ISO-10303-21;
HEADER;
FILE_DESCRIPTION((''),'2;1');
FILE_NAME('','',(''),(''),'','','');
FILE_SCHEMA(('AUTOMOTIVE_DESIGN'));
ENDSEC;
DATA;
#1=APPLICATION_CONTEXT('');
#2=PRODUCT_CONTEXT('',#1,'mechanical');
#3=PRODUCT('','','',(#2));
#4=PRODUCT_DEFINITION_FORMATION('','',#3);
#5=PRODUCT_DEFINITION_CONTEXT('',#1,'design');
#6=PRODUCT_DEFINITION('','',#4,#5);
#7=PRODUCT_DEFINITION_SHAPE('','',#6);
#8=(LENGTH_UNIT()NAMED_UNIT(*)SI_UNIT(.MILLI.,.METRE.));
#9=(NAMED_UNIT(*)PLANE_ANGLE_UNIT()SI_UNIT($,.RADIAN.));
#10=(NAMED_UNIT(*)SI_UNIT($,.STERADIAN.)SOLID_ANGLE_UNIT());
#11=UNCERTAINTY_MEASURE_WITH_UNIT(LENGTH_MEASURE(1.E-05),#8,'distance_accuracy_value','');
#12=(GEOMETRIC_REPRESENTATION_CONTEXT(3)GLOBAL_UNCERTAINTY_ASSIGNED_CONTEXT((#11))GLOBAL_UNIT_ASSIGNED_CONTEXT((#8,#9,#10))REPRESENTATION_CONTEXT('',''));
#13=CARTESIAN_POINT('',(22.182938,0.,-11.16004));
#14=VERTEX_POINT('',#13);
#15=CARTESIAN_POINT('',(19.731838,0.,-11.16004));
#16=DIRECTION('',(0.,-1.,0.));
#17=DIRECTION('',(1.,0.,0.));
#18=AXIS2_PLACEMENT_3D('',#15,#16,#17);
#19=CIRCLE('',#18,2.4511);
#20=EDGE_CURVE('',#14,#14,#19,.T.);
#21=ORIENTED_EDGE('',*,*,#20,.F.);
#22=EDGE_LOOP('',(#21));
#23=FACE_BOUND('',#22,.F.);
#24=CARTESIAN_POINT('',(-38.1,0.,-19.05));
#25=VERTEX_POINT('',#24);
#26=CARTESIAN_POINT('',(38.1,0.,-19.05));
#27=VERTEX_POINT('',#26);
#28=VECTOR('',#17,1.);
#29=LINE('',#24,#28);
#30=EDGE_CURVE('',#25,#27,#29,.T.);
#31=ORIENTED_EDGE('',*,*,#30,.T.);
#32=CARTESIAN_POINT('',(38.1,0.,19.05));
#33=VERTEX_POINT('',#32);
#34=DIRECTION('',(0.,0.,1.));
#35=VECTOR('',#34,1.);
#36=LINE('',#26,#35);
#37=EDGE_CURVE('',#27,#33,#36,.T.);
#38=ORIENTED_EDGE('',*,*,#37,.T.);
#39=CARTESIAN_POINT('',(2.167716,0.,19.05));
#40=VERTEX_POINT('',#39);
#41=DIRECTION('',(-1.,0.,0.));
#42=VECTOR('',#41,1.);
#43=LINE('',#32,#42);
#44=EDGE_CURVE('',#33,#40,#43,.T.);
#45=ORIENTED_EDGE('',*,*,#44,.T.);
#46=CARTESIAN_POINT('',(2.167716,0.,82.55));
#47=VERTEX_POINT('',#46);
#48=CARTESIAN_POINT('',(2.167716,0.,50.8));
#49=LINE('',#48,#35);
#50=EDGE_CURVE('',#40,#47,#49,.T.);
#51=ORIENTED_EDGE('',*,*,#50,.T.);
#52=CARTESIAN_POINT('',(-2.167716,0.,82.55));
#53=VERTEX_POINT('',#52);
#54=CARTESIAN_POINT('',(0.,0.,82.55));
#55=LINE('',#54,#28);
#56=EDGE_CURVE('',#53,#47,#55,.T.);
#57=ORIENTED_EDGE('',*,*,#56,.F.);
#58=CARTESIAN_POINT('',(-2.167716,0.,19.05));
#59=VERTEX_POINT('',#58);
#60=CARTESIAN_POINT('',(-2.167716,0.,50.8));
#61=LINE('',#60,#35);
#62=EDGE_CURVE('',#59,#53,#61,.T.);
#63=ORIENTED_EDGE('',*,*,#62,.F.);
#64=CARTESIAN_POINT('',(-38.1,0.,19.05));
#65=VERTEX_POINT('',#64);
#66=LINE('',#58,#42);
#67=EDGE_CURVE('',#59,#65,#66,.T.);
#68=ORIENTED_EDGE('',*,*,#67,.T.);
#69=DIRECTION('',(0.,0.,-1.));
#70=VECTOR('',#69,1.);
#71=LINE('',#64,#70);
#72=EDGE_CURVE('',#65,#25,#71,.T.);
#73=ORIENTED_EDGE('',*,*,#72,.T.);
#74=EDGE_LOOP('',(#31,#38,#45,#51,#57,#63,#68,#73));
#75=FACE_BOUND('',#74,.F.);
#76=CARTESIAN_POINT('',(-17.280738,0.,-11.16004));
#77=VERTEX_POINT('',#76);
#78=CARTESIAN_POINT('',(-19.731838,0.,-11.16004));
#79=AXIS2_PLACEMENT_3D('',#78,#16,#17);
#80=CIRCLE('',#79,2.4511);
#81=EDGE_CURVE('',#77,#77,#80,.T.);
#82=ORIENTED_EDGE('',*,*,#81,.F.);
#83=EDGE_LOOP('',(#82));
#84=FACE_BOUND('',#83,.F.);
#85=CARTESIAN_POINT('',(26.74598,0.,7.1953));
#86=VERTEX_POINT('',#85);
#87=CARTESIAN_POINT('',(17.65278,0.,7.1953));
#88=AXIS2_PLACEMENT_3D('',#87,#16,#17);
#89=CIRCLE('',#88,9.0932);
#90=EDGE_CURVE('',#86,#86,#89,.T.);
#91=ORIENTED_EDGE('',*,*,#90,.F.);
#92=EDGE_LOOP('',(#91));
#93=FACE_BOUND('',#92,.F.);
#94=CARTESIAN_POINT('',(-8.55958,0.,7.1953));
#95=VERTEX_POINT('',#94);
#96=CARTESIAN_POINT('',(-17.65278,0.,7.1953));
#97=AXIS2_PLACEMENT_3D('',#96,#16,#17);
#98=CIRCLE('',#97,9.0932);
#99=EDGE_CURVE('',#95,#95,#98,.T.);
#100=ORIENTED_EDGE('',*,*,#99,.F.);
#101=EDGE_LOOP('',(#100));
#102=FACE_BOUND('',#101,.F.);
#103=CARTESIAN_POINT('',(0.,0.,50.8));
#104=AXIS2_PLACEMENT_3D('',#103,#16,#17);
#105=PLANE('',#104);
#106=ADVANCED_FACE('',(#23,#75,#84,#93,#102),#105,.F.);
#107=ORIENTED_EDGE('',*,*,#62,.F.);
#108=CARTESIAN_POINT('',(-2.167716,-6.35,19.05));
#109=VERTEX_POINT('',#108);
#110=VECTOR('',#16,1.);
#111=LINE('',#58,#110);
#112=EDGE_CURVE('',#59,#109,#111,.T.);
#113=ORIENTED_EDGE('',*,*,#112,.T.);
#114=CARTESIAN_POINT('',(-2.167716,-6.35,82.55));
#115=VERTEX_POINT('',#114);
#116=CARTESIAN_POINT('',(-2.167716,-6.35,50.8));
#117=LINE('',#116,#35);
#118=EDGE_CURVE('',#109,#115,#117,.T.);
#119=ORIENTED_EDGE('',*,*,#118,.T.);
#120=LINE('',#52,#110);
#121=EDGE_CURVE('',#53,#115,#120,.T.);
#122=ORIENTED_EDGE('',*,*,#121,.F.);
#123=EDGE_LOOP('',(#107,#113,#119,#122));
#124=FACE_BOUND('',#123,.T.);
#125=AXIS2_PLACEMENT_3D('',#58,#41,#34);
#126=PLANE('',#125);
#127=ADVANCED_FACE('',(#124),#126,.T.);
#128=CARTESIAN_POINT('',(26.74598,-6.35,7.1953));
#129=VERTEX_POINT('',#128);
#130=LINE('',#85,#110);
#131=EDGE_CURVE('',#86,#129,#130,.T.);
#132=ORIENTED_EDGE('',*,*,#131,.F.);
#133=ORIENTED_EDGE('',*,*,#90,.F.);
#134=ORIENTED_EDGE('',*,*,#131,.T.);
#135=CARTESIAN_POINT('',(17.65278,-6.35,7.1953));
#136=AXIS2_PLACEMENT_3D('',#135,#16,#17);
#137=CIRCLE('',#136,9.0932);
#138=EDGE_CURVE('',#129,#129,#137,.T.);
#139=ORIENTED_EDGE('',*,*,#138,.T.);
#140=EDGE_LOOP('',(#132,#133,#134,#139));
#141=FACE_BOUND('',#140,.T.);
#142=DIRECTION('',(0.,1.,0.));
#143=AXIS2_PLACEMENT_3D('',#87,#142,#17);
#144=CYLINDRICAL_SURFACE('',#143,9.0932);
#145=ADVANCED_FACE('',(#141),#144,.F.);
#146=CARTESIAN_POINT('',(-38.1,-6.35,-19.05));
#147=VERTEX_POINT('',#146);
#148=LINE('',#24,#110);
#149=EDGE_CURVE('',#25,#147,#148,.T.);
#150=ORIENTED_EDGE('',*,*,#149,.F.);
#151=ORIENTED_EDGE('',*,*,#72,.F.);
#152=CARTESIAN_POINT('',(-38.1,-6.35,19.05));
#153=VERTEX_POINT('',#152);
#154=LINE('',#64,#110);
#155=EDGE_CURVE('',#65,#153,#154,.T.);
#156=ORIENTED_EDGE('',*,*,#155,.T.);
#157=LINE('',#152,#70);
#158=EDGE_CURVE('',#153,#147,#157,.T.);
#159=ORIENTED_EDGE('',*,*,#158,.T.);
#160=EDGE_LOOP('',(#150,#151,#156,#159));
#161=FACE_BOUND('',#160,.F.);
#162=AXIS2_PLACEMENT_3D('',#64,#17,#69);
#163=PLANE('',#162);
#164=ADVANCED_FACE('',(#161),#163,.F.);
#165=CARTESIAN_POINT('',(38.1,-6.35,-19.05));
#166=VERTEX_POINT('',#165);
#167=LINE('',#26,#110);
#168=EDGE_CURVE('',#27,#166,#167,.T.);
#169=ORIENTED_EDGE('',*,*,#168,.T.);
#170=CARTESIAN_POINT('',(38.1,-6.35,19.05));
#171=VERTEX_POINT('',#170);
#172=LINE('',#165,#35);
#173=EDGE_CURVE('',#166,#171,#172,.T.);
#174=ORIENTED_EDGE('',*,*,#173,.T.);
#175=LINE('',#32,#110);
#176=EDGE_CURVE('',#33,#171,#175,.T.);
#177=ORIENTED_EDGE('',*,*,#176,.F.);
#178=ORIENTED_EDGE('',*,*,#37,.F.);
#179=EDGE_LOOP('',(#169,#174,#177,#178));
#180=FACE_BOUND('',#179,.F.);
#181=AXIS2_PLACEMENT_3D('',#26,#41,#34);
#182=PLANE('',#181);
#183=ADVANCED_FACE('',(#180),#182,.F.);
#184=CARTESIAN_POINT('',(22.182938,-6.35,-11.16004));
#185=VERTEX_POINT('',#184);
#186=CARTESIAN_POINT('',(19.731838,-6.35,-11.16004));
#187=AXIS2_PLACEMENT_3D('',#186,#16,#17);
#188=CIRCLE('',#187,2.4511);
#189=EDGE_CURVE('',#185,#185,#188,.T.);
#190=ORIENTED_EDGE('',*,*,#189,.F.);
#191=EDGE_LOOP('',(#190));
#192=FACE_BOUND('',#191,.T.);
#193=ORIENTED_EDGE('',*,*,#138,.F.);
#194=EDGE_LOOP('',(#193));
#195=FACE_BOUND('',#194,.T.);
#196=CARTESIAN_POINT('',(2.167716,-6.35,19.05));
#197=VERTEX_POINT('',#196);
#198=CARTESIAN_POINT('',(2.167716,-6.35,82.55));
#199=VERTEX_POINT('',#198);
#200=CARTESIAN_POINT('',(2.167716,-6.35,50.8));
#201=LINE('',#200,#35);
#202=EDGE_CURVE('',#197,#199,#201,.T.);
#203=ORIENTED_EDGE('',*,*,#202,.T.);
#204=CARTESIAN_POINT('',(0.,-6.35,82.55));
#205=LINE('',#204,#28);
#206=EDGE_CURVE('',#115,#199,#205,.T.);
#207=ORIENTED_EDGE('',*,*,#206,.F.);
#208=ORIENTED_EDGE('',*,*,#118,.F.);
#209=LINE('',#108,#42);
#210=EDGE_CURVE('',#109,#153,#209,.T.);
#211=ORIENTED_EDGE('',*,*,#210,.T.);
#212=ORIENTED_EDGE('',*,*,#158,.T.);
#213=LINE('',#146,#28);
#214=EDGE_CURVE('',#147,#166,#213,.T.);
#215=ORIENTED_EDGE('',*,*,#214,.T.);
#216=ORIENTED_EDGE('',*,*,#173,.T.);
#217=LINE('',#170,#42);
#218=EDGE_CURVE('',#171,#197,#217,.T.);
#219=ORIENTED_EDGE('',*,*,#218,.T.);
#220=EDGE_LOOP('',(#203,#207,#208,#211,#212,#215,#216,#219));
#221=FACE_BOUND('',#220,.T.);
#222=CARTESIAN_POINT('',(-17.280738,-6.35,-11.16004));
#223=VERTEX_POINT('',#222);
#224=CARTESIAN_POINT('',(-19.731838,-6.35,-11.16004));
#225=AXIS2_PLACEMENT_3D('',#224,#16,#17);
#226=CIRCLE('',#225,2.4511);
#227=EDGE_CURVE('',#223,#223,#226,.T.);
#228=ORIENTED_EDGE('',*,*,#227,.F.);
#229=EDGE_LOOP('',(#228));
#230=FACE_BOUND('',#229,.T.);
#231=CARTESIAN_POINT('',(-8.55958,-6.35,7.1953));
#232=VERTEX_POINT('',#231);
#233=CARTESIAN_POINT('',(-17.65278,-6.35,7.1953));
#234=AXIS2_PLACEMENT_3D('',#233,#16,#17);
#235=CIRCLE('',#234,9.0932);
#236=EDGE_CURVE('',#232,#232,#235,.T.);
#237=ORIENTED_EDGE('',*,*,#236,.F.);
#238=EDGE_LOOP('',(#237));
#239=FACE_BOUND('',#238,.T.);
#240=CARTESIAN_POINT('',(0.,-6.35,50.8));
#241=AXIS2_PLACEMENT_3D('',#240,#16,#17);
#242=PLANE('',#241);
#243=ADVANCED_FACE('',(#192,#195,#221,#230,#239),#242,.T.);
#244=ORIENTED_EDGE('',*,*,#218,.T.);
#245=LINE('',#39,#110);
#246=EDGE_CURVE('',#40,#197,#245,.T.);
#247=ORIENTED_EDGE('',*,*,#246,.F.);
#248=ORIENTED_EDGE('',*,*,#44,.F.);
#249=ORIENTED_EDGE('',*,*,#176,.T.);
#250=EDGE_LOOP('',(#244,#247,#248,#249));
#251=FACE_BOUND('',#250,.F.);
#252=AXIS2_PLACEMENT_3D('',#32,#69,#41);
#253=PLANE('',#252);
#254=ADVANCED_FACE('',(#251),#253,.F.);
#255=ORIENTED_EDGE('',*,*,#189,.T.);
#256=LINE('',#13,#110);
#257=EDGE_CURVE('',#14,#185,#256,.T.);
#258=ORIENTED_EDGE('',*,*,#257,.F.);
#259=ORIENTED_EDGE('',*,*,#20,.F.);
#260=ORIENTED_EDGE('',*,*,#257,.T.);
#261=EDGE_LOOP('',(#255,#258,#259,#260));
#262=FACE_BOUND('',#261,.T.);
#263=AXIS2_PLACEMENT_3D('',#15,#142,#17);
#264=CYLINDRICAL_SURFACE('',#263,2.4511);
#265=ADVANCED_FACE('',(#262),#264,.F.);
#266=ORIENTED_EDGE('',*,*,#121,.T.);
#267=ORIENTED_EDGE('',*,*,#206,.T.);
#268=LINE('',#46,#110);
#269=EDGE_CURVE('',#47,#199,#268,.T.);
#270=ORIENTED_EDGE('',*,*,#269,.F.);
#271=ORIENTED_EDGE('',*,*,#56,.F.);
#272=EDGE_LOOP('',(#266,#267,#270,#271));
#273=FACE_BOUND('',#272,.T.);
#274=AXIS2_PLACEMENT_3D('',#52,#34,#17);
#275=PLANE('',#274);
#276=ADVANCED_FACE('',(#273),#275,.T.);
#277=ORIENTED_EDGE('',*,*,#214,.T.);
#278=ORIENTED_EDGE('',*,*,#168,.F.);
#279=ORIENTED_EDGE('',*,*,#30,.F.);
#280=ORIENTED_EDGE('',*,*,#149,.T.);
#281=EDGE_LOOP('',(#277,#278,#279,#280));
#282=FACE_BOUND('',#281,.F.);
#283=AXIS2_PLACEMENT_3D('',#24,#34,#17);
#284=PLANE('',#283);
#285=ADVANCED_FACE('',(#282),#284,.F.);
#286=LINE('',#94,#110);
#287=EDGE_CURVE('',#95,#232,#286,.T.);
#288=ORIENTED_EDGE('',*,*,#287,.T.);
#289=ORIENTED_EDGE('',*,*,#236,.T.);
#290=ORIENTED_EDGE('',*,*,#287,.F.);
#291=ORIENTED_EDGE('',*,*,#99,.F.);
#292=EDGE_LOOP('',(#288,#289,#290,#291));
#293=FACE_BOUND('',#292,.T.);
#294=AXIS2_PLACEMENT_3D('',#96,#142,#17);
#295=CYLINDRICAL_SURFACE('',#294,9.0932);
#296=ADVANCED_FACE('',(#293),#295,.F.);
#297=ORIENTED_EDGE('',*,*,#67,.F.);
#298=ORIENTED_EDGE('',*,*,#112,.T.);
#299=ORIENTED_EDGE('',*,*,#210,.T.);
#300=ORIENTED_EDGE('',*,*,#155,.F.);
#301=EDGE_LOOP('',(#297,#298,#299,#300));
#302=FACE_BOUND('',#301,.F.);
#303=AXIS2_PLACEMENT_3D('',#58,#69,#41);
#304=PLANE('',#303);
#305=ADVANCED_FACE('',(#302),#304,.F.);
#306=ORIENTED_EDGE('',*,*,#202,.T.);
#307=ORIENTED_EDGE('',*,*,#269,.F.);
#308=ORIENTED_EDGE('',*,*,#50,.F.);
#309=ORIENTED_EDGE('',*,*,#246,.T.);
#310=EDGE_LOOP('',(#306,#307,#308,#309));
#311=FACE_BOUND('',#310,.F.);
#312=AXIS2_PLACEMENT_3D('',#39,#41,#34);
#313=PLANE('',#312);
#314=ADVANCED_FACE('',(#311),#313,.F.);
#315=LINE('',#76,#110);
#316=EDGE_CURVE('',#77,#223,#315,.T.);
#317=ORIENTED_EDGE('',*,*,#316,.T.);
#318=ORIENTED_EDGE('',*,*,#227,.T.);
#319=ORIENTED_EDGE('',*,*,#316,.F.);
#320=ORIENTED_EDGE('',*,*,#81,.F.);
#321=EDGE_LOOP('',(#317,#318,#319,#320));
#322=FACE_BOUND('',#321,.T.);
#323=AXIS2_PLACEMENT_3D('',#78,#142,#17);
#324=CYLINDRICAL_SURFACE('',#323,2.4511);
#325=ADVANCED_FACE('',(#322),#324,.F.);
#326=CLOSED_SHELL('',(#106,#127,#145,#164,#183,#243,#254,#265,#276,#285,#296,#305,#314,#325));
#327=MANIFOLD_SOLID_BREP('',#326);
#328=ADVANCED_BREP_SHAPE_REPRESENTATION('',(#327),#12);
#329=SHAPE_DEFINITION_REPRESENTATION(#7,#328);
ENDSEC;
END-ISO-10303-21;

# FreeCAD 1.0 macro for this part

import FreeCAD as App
import Part
import Sketcher
from FreeCAD import Vector
Q = App.Units.Quantity

doc = App.newDocument("Part")
body = doc.addObject("PartDesign::Body", "Body")

# Sketch on XZ plane
sketch1 = body.newObject("Sketcher::SketchObject", "Sketch")
sketch1.AttachmentSupport = (doc.getObject("XZ_Plane"), [""])
sketch1.MapMode = "FlatFace"
sketch1.addGeometry([
    Part.LineSegment(Vector(-2.167716, 82.55, 0), Vector(-2.167716, 19.05, 0)),  # 0
    Part.LineSegment(Vector(-2.167716, 19.05, 0), Vector(-38.1, 19.05, 0)),  # 1
    Part.LineSegment(Vector(-38.1, 19.05, 0), Vector(-38.1, -19.05, 0)),  # 2
    Part.LineSegment(Vector(-38.1, -19.05, 0), Vector(38.1, -19.05, 0)),  # 3
    Part.LineSegment(Vector(38.1, -19.05, 0), Vector(38.1, 19.05, 0)),  # 4
    Part.LineSegment(Vector(38.1, 19.05, 0), Vector(2.167716, 19.05, 0)),  # 5
    Part.LineSegment(Vector(2.167716, 19.05, 0), Vector(2.167716, 82.55, 0)),  # 6
    Part.LineSegment(Vector(2.167716, 82.55, 0), Vector(-2.167716, 82.55, 0)),  # 7
    Part.Circle(Vector(-19.731838, -11.16004, 0), Vector(0, 0, 1), 2.4511),  # 8
    Part.Circle(Vector(19.731838, -11.16004, 0), Vector(0, 0, 1), 2.4511),  # 9
    Part.Circle(Vector(-17.65278, 7.1953, 0), Vector(0, 0, 1), 9.0932),  # 10
    Part.Circle(Vector(17.65278, 7.1953, 0), Vector(0, 0, 1), 9.0932),  # 11
], False)
sketch1.addConstraint([
    Sketcher.Constraint("Coincident", 0, 2, 1, 1),
    Sketcher.Constraint("Coincident", 1, 2, 2, 1),
    Sketcher.Constraint("Coincident", 2, 2, 3, 1),
    Sketcher.Constraint("Coincident", 3, 2, 4, 1),
    Sketcher.Constraint("Coincident", 4, 2, 5, 1),
    Sketcher.Constraint("Coincident", 5, 2, 6, 1),
    Sketcher.Constraint("Coincident", 6, 2, 7, 1),
    Sketcher.Constraint("Coincident", 7, 2, 0, 1),
    Sketcher.Constraint("Vertical", 0),
    Sketcher.Constraint("Horizontal", 1),
    Sketcher.Constraint("Vertical", 2),
    Sketcher.Constraint("Horizontal", 3),
    Sketcher.Constraint("Vertical", 4),
    Sketcher.Constraint("Horizontal", 5),
    Sketcher.Constraint("Vertical", 6),
    Sketcher.Constraint("Horizontal", 7),
    Sketcher.Constraint("Equal", 8, 9),
    Sketcher.Constraint("Equal", 10, 11),
    Sketcher.Constraint("Symmetric", 1, 2, 3, 2, -1, 1),
    Sketcher.Constraint("Symmetric", 8, 3, 9, 3, -2),
    Sketcher.Constraint("Symmetric", 10, 3, 11, 3, -2),
    Sketcher.Constraint("Symmetric", 0, 2, 5, 2, -2),
    Sketcher.Constraint("DistanceX", 3, 1, 3, 2, Q("3 in")),
    Sketcher.Constraint("Diameter", 8, Q("0.193 in")),
    Sketcher.Constraint("Diameter", 10, Q("0.716 in")),
    Sketcher.Constraint("DistanceY", 0, 2, 0, 1, Q("2.5 in")),
    Sketcher.Constraint("DistanceY", 2, 2, 2, 1, Q("1.5 in")),
    Sketcher.Constraint("DistanceY", -1, 1, 10, 3, Q("7.1953 mm")),
    Sketcher.Constraint("DistanceX", 1, 2, 1, 1, Q("35.932284 mm")),
    Sketcher.Constraint("DistanceX", 8, 3, -1, 1, Q("19.731838 mm")),
    Sketcher.Constraint("DistanceY", 8, 3, -1, 1, Q("11.16004 mm")),
    Sketcher.Constraint("DistanceX", 10, 3, -1, 1, Q("17.65278 mm")),
])
pad1 = body.newObject("PartDesign::Pad", "Pad")
pad1.Profile = sketch1
pad1.Length = Q("0.25 in")

doc.recompute()
